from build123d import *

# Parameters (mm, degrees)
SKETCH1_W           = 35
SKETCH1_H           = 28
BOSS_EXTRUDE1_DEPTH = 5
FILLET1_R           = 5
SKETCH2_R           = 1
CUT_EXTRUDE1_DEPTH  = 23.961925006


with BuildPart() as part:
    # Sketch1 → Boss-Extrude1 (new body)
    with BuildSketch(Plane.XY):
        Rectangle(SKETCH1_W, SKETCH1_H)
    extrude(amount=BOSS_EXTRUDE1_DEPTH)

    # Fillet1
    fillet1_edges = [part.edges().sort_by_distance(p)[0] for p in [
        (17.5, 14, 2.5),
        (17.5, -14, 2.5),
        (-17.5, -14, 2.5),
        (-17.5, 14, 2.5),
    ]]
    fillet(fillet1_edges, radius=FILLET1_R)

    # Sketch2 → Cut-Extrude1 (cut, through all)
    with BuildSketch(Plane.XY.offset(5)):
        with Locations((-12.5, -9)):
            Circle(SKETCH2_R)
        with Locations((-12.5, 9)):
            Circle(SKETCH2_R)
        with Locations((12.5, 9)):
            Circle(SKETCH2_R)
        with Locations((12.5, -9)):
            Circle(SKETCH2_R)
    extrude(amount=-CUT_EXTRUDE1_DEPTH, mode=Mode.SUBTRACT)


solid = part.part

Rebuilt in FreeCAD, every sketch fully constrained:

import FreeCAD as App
import Part
import Sketcher
Q = App.Units.Quantity


def edges_at(feature, points):
    """Names of the edges that pass closest to the given points."""
    edges = feature.Shape.Edges
    near = lambda p: min(range(len(edges)), key=lambda i: edges[i].distToShape(Part.Vertex(*p))[0])
    return sorted({f"Edge{near(p) + 1}" for p in points})

doc = App.newDocument("Part")
body = doc.addObject("PartDesign::Body", "Body")

# Sketch on XY plane
sketch1 = body.newObject("Sketcher::SketchObject", "Sketch")
sketch1.AttachmentSupport = (doc.getObject("XY_Plane"), [""])
sketch1.MapMode = "FlatFace"
sketch1.addGeometry([
    Part.LineSegment(App.Vector(-18, 14, 0), App.Vector(-18, -14, 0)),
    Part.LineSegment(App.Vector(-18, -14, 0), App.Vector(18, -14, 0)),
    Part.LineSegment(App.Vector(18, -14, 0), App.Vector(18, 14, 0)),
    Part.LineSegment(App.Vector(18, 14, 0), App.Vector(-18, 14, 0)),
], False)
sketch1.addConstraint([
    Sketcher.Constraint("Coincident", 0, 2, 1, 1),
    Sketcher.Constraint("Coincident", 1, 2, 2, 1),
    Sketcher.Constraint("Coincident", 2, 2, 3, 1),
    Sketcher.Constraint("Coincident", 3, 2, 0, 1),
    Sketcher.Constraint("Vertical", 0),
    Sketcher.Constraint("Horizontal", 1),
    Sketcher.Constraint("Vertical", 2),
    Sketcher.Constraint("Horizontal", 3),
    Sketcher.Constraint("Symmetric", 0, 2, 2, 2, -1, 1),
    Sketcher.Constraint("DistanceX", 1, 1, 1, 2, Q("35 mm")),
    Sketcher.Constraint("DistanceY", 0, 2, 0, 1, Q("28 mm")),
])
pad1 = body.newObject("PartDesign::Pad", "Pad")
pad1.Profile = sketch1
pad1.Length = 5
doc.recompute()

fillet = body.newObject("PartDesign::Fillet", "Fillet")
fillet.Base = (pad1, edges_at(pad1, [
    (17.5, 14, 2.5),
    (17.5, -14, 2.5),
    (-17.5, -14, 2.5),
    (-17.5, 14, 2.5),
]))
fillet.Radius = 5

# Sketch on XY plane
sketch2 = body.newObject("Sketcher::SketchObject", "Sketch001")
sketch2.AttachmentSupport = (doc.getObject("XY_Plane"), [""])
sketch2.MapMode = "FlatFace"
sketch2.AttachmentOffset = App.Placement(App.Vector(0, 0, 5), App.Rotation())
sketch2.addGeometry([
    Part.Circle(App.Vector(-12.5, -9, 0), App.Vector(0, 0, 1), 1),
    Part.Circle(App.Vector(-12.5, 9, 0), App.Vector(0, 0, 1), 1),
    Part.Circle(App.Vector(12.5, 9, 0), App.Vector(0, 0, 1), 1),
    Part.Circle(App.Vector(12.5, -9, 0), App.Vector(0, 0, 1), 1),
], False)
sketch2.addConstraint([
    Sketcher.Constraint("Equal", 0, 1),
    Sketcher.Constraint("Equal", 1, 2),
    Sketcher.Constraint("Equal", 2, 3),
    Sketcher.Constraint("Symmetric", 0, 3, 2, 3, -1, 1),
    Sketcher.Constraint("Symmetric", 1, 3, 3, 3, -1, 1),
    Sketcher.Constraint("Symmetric", 1, 3, 2, 3, -2),
    Sketcher.Constraint("Diameter", 0, Q("2 mm")),
    Sketcher.Constraint("DistanceY", 0, 3, -1, 1, Q("9 mm")),
    Sketcher.Constraint("DistanceX", 1, 3, 2, 3, Q("25 mm")),
])
pocket1 = body.newObject("PartDesign::Pocket", "Pocket")
pocket1.Profile = sketch2
pocket1.Type = "ThroughAll"

doc.recompute()
